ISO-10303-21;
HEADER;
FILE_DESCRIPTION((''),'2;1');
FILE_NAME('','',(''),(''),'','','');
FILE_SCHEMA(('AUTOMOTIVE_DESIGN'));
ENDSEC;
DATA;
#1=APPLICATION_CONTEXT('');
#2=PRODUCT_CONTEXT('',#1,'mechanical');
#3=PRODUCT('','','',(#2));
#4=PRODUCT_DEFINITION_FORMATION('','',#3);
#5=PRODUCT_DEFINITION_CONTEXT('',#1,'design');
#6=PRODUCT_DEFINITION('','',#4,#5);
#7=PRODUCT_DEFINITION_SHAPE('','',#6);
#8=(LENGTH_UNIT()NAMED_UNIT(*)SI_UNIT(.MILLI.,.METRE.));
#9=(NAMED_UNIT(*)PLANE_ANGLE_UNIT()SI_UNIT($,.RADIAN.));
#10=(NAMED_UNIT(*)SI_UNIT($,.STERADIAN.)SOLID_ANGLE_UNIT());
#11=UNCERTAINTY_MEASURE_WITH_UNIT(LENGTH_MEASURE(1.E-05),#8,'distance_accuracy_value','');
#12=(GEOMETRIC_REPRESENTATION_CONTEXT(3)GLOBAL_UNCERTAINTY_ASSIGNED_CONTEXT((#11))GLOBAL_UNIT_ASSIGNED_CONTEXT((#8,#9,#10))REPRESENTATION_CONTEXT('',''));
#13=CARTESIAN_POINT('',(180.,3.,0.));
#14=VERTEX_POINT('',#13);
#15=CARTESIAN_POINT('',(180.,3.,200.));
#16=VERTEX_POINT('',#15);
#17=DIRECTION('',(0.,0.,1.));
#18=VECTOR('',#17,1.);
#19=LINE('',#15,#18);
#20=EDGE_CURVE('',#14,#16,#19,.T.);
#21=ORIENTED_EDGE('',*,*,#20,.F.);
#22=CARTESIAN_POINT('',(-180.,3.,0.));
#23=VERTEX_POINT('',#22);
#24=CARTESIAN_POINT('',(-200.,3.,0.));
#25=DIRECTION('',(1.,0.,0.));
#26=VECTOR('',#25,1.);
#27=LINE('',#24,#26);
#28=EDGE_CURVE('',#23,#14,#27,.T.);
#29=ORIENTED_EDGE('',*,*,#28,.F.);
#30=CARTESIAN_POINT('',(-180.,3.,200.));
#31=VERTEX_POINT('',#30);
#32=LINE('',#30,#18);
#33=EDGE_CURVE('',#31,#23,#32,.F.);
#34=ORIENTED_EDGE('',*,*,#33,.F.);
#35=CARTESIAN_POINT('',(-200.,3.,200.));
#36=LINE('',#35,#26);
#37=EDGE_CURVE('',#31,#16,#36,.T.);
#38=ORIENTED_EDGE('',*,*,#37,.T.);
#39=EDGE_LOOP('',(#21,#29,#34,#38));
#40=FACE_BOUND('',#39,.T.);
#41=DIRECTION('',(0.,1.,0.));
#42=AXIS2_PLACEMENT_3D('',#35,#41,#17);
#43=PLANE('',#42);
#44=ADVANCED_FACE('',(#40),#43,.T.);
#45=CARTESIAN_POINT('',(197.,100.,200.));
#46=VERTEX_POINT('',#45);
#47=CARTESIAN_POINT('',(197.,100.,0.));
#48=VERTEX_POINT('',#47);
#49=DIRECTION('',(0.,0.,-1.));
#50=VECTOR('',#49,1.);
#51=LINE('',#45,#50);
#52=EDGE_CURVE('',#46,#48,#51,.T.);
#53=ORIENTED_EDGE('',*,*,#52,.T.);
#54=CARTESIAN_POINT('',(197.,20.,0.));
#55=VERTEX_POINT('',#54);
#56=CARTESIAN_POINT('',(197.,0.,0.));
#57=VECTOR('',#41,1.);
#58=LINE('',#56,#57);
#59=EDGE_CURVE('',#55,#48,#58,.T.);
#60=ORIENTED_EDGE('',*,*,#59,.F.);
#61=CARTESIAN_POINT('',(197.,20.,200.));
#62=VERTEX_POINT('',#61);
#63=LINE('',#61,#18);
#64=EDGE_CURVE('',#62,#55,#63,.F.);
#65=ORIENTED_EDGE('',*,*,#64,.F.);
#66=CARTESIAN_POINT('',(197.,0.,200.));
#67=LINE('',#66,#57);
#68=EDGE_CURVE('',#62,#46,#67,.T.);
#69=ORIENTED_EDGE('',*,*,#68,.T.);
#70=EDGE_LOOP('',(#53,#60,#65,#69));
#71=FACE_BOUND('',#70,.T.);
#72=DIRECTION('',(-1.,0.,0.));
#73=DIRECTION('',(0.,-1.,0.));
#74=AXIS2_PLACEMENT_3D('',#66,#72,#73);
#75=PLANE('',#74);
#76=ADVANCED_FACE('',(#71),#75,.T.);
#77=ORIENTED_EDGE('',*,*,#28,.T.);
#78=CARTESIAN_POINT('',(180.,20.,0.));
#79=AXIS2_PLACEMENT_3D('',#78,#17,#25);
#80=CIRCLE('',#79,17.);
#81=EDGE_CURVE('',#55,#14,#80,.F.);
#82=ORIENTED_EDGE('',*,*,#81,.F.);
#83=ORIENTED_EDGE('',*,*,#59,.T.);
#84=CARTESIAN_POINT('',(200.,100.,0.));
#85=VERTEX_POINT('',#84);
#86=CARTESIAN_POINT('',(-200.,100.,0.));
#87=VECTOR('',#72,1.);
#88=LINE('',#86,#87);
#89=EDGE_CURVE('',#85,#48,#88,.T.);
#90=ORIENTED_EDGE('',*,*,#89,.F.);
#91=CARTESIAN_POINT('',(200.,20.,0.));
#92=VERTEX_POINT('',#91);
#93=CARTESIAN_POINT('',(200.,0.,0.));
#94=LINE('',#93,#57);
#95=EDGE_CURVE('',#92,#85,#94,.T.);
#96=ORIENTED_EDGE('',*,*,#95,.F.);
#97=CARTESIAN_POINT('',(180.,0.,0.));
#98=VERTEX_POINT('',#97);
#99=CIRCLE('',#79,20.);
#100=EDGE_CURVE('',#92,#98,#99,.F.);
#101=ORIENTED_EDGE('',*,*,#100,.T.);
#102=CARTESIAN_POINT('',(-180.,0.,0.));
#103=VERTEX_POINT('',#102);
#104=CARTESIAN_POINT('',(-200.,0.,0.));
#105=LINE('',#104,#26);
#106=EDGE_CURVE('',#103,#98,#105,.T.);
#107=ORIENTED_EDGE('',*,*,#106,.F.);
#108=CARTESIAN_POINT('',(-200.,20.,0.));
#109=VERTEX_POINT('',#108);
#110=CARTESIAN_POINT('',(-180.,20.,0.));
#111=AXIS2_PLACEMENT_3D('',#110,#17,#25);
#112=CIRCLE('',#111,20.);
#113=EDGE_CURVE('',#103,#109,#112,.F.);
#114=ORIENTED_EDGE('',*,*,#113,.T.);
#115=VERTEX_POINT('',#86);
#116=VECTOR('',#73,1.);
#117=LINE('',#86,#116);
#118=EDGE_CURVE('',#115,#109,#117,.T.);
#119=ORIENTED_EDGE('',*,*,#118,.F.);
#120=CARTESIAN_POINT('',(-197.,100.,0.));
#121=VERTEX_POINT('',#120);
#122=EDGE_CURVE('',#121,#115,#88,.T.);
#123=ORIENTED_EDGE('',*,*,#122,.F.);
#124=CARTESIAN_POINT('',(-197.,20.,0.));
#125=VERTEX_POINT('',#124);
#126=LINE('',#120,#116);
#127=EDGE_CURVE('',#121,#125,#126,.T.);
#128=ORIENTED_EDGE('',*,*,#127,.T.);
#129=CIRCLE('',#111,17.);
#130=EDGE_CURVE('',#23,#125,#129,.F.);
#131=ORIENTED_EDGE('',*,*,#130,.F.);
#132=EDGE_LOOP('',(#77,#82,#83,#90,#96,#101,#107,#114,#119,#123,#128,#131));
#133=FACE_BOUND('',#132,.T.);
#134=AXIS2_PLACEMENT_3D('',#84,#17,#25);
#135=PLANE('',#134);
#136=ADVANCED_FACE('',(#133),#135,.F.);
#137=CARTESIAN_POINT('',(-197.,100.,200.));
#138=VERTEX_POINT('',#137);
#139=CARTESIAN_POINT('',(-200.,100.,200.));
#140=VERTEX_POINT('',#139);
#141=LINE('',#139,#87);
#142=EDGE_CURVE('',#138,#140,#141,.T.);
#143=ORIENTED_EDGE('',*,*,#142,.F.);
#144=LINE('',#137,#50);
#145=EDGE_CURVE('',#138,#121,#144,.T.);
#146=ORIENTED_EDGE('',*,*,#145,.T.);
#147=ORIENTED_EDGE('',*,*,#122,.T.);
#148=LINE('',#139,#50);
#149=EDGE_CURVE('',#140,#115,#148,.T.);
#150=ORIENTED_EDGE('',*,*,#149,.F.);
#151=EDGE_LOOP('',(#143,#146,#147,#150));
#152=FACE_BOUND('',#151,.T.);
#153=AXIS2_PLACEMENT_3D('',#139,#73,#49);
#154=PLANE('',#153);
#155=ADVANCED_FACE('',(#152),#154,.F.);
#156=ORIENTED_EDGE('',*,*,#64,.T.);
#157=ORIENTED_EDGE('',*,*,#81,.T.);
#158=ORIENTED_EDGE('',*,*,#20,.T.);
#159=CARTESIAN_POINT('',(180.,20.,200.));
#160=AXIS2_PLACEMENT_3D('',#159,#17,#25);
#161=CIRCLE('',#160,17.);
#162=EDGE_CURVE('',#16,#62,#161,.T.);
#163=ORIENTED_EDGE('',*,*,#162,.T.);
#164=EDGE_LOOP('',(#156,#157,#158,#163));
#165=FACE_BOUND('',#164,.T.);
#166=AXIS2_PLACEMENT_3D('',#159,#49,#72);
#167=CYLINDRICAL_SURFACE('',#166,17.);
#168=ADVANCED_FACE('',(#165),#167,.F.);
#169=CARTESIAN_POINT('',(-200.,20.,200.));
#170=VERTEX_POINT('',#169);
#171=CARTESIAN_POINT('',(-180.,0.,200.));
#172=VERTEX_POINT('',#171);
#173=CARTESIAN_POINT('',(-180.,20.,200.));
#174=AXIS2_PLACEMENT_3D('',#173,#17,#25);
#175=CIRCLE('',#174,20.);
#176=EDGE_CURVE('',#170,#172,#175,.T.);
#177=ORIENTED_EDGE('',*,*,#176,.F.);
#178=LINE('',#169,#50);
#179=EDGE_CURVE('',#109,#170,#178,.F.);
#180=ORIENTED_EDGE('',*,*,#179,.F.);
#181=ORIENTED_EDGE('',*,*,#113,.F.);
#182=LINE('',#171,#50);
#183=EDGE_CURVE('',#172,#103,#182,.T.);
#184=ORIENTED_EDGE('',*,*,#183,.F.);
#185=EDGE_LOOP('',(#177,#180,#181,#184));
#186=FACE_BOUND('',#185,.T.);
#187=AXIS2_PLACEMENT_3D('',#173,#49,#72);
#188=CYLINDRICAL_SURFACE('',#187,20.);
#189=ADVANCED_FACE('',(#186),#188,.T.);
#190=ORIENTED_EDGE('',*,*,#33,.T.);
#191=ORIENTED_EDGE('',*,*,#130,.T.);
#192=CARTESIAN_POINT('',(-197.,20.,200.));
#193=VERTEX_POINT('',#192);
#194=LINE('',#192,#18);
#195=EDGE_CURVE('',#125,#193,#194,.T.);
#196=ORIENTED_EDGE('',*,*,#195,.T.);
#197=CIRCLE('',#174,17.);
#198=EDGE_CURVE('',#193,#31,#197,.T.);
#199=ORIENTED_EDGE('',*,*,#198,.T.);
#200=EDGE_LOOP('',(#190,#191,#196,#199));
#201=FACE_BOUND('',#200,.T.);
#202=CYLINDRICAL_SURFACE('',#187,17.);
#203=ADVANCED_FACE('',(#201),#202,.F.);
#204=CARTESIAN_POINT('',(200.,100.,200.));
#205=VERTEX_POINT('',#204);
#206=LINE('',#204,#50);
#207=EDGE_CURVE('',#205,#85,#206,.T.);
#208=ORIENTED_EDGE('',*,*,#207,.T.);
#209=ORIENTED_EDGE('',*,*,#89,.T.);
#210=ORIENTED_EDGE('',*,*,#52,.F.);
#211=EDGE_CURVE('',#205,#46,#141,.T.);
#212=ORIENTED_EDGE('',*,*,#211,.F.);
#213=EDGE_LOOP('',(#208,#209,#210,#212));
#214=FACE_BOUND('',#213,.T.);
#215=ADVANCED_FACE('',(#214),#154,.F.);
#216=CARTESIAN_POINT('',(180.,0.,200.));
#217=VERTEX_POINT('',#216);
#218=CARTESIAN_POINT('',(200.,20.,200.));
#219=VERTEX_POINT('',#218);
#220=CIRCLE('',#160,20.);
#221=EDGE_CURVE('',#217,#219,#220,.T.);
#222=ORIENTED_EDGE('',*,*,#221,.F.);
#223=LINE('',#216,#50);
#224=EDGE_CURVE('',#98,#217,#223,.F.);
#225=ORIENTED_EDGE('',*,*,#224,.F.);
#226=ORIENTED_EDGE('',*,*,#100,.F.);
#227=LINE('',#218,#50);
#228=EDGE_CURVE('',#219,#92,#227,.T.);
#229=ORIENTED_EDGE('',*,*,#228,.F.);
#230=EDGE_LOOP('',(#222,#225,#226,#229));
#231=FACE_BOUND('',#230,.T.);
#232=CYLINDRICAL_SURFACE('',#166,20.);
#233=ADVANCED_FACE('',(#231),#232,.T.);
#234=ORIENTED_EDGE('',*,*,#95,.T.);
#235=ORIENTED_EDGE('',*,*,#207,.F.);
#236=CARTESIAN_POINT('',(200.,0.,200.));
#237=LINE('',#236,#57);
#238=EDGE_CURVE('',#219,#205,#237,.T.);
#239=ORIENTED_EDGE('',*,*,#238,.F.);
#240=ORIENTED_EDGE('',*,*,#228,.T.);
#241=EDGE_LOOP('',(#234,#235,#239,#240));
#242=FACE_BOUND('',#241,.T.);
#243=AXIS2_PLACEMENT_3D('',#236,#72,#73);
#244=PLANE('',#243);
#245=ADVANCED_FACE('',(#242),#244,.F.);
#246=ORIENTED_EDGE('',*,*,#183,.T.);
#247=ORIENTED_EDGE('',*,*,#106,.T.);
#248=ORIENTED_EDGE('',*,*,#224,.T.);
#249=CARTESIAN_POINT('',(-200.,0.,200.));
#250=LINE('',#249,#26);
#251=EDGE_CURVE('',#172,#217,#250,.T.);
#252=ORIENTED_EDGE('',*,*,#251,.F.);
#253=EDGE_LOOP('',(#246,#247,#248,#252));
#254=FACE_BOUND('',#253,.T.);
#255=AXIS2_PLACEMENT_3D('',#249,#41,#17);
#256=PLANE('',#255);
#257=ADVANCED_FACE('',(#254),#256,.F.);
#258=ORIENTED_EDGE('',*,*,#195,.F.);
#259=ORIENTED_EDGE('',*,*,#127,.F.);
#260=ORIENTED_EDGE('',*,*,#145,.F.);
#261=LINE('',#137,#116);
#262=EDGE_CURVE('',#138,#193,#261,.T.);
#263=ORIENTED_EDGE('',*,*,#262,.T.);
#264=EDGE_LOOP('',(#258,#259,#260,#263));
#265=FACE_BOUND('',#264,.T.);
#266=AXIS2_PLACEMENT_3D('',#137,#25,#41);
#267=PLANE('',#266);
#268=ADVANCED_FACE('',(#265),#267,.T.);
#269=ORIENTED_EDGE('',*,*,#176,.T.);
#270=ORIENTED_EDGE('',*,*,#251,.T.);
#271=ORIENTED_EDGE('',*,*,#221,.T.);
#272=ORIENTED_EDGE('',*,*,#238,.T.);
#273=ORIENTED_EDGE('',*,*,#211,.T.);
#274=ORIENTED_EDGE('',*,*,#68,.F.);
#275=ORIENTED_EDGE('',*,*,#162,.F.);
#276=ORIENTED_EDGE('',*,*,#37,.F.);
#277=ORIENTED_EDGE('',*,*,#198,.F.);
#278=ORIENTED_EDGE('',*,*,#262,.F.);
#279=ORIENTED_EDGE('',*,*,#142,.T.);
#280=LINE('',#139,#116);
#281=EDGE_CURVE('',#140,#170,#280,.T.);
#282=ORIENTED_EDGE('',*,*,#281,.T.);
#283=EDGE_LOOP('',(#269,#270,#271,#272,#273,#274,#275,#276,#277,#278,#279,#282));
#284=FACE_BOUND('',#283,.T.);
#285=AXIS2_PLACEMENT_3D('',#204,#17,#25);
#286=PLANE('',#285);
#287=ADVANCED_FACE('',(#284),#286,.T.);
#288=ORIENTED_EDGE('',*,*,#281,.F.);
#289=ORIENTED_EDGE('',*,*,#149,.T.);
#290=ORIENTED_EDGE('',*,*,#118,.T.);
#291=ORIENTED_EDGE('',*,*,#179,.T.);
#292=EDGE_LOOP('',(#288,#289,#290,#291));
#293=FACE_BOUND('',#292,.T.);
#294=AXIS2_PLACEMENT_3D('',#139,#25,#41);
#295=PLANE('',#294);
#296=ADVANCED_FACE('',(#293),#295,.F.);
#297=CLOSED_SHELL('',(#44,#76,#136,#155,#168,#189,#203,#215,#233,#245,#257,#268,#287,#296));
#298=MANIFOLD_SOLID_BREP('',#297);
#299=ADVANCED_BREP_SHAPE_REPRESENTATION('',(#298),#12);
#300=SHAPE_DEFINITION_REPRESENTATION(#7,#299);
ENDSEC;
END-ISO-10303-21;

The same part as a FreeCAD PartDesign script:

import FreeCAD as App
import Part
import Sketcher
Q = App.Units.Quantity


def edges_at(feature, points):
    """Names of the edges that pass closest to the given points."""
    edges = feature.Shape.Edges
    near = lambda p: min(range(len(edges)), key=lambda i: edges[i].distToShape(Part.Vertex(*p))[0])
    return sorted({f"Edge{near(p) + 1}" for p in points})


def faces_at(feature, points):
    """Names of the faces that lie closest to the given points."""
    faces = feature.Shape.Faces
    near = lambda p: min(range(len(faces)), key=lambda i: faces[i].distToShape(Part.Vertex(*p))[0])
    return sorted({f"Face{near(p) + 1}" for p in points})


def add_polygon(sketch, points):
    """Adds a closed chain of lines whose ends are joined by coincident constraints."""
    first, n = sketch.GeometryCount, len(points)
    for a, b in zip(points, points[1:] + points[:1]):
        sketch.addGeometry(Part.LineSegment(App.Vector(*a, 0), App.Vector(*b, 0)), False)
    for i in range(n):
        sketch.addConstraint(Sketcher.Constraint("Coincident", first + i, 2, first + (i + 1) % n, 1))

doc = App.newDocument("Part")
body = doc.addObject("PartDesign::Body", "Body")

sketch1 = body.newObject("Sketcher::SketchObject", "Sketch")
sketch1.AttachmentSupport = (doc.getObject("XY_Plane"), [""])
sketch1.MapMode = "FlatFace"
add_polygon(sketch1, [(-200, 100), (-200, 0), (200, 0), (200, 100)])
sketch1.addConstraint([
    Sketcher.Constraint("Vertical", 0),
    Sketcher.Constraint("Horizontal", 1),
    Sketcher.Constraint("Vertical", 2),
    Sketcher.Constraint("Horizontal", 3),
    Sketcher.Constraint("Symmetric", 0, 2, 1, 2, -1, 1),
    Sketcher.Constraint("DistanceX", 1, 1, 1, 2, Q("400 mm")),
    Sketcher.Constraint("DistanceY", 0, 2, 0, 1, Q("100 mm")),
])
pad1 = body.newObject("PartDesign::Pad", "Pad")
pad1.Profile = sketch1
pad1.Length = 200
doc.recompute()

fillet = body.newObject("PartDesign::Fillet", "Fillet")
fillet.Base = (pad1, edges_at(pad1, [(200, 0, 100), (-200, 0, 100)]))
fillet.Radius = 20
doc.recompute()

thickness = body.newObject("PartDesign::Thickness", "Thickness")
thickness.Base = (fillet, faces_at(fillet, [(0, 50, 200), (0, 50, 0), (0, 100, 100)]))
thickness.Value = 3
thickness.Reversed = True
thickness.Join = "Intersection"

doc.recompute()
